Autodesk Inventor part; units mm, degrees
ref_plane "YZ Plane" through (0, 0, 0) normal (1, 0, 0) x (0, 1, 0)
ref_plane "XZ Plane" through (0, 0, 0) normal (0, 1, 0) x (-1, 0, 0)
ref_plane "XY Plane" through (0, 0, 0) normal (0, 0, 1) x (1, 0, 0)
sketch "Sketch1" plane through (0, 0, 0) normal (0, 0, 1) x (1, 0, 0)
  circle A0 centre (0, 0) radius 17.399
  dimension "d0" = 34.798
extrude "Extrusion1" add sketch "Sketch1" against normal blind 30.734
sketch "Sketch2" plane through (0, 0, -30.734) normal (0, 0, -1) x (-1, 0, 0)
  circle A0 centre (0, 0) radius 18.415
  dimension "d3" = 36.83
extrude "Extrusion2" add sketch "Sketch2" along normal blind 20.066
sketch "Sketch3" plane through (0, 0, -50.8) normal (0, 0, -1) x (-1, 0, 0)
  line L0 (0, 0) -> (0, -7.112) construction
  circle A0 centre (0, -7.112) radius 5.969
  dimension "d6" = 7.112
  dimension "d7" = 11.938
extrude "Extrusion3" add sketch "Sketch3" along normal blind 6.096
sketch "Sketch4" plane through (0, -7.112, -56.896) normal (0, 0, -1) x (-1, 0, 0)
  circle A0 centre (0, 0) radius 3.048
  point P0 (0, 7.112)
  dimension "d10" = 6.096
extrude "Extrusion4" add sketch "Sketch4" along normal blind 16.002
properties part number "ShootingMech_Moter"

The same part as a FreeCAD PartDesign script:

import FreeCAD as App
import Part
import Sketcher
Q = App.Units.Quantity

doc = App.newDocument("Part")
body = doc.addObject("PartDesign::Body", "Body")

sketch1 = body.newObject("Sketcher::SketchObject", "Sketch")
sketch1.AttachmentSupport = (doc.getObject("XY_Plane"), [""])
sketch1.MapMode = "FlatFace"
sketch1.addGeometry(Part.Circle(App.Vector(0, 0, 0), App.Vector(0, 0, 1), 17), False)
sketch1.addConstraint(Sketcher.Constraint("Coincident", 0, 3, -1, 1))
sketch1.addConstraint(Sketcher.Constraint("Diameter", 0, Q("1.37 in")))
pad1 = body.newObject("PartDesign::Pad", "Pad")
pad1.Profile = sketch1
pad1.Length = Q("1.21 in")
pad1.Reversed = True

sketch2 = body.newObject("Sketcher::SketchObject", "Sketch001")
sketch2.AttachmentSupport = (doc.getObject("XY_Plane"), [""])
sketch2.MapMode = "FlatFace"
sketch2.AttachmentOffset = App.Placement(App.Vector(0, 0, -1.21 * 25.4), App.Rotation())
sketch2.addGeometry(Part.Circle(App.Vector(0, 0, 0), App.Vector(0, 0, 1), 18), False)
sketch2.addConstraint(Sketcher.Constraint("Coincident", 0, 3, -1, 1))
sketch2.addConstraint(Sketcher.Constraint("Diameter", 0, Q("1.45 in")))
pad2 = body.newObject("PartDesign::Pad", "Pad001")
pad2.Profile = sketch2
pad2.Length = Q("0.79 in")
pad2.Reversed = True

sketch3 = body.newObject("Sketcher::SketchObject", "Sketch002")
sketch3.AttachmentSupport = (doc.getObject("XY_Plane"), [""])
sketch3.MapMode = "FlatFace"
sketch3.AttachmentOffset = App.Placement(App.Vector(0, 0, -2 * 25.4), App.Rotation())
sketch3.addGeometry(Part.Circle(App.Vector(0, -7, 0), App.Vector(0, 0, 1), 6), False)
sketch3.addConstraint(Sketcher.Constraint("PointOnObject", 0, 3, -2))
sketch3.addConstraint(Sketcher.Constraint("Diameter", 0, Q("0.47 in")))
sketch3.addConstraint(Sketcher.Constraint("DistanceY", 0, 3, -1, 1, Q("0.28 in")))
pad3 = body.newObject("PartDesign::Pad", "Pad002")
pad3.Profile = sketch3
pad3.Length = Q("0.24 in")
pad3.Reversed = True

sketch4 = body.newObject("Sketcher::SketchObject", "Sketch003")
sketch4.AttachmentSupport = (doc.getObject("XY_Plane"), [""])
sketch4.MapMode = "FlatFace"
sketch4.AttachmentOffset = App.Placement(App.Vector(0, 0, -2.24 * 25.4), App.Rotation())
sketch4.addGeometry(Part.Circle(App.Vector(0, -7.1, 0), App.Vector(0, 0, 1), 3), False)
sketch4.addConstraint(Sketcher.Constraint("PointOnObject", 0, 3, -2))
sketch4.addConstraint(Sketcher.Constraint("Diameter", 0, Q("0.24 in")))
sketch4.addConstraint(Sketcher.Constraint("DistanceY", 0, 3, -1, 1, Q("0.28 in")))
pad4 = body.newObject("PartDesign::Pad", "Pad003")
pad4.Profile = sketch4
pad4.Length = Q("0.63 in")
pad4.Reversed = True

doc.recompute()
